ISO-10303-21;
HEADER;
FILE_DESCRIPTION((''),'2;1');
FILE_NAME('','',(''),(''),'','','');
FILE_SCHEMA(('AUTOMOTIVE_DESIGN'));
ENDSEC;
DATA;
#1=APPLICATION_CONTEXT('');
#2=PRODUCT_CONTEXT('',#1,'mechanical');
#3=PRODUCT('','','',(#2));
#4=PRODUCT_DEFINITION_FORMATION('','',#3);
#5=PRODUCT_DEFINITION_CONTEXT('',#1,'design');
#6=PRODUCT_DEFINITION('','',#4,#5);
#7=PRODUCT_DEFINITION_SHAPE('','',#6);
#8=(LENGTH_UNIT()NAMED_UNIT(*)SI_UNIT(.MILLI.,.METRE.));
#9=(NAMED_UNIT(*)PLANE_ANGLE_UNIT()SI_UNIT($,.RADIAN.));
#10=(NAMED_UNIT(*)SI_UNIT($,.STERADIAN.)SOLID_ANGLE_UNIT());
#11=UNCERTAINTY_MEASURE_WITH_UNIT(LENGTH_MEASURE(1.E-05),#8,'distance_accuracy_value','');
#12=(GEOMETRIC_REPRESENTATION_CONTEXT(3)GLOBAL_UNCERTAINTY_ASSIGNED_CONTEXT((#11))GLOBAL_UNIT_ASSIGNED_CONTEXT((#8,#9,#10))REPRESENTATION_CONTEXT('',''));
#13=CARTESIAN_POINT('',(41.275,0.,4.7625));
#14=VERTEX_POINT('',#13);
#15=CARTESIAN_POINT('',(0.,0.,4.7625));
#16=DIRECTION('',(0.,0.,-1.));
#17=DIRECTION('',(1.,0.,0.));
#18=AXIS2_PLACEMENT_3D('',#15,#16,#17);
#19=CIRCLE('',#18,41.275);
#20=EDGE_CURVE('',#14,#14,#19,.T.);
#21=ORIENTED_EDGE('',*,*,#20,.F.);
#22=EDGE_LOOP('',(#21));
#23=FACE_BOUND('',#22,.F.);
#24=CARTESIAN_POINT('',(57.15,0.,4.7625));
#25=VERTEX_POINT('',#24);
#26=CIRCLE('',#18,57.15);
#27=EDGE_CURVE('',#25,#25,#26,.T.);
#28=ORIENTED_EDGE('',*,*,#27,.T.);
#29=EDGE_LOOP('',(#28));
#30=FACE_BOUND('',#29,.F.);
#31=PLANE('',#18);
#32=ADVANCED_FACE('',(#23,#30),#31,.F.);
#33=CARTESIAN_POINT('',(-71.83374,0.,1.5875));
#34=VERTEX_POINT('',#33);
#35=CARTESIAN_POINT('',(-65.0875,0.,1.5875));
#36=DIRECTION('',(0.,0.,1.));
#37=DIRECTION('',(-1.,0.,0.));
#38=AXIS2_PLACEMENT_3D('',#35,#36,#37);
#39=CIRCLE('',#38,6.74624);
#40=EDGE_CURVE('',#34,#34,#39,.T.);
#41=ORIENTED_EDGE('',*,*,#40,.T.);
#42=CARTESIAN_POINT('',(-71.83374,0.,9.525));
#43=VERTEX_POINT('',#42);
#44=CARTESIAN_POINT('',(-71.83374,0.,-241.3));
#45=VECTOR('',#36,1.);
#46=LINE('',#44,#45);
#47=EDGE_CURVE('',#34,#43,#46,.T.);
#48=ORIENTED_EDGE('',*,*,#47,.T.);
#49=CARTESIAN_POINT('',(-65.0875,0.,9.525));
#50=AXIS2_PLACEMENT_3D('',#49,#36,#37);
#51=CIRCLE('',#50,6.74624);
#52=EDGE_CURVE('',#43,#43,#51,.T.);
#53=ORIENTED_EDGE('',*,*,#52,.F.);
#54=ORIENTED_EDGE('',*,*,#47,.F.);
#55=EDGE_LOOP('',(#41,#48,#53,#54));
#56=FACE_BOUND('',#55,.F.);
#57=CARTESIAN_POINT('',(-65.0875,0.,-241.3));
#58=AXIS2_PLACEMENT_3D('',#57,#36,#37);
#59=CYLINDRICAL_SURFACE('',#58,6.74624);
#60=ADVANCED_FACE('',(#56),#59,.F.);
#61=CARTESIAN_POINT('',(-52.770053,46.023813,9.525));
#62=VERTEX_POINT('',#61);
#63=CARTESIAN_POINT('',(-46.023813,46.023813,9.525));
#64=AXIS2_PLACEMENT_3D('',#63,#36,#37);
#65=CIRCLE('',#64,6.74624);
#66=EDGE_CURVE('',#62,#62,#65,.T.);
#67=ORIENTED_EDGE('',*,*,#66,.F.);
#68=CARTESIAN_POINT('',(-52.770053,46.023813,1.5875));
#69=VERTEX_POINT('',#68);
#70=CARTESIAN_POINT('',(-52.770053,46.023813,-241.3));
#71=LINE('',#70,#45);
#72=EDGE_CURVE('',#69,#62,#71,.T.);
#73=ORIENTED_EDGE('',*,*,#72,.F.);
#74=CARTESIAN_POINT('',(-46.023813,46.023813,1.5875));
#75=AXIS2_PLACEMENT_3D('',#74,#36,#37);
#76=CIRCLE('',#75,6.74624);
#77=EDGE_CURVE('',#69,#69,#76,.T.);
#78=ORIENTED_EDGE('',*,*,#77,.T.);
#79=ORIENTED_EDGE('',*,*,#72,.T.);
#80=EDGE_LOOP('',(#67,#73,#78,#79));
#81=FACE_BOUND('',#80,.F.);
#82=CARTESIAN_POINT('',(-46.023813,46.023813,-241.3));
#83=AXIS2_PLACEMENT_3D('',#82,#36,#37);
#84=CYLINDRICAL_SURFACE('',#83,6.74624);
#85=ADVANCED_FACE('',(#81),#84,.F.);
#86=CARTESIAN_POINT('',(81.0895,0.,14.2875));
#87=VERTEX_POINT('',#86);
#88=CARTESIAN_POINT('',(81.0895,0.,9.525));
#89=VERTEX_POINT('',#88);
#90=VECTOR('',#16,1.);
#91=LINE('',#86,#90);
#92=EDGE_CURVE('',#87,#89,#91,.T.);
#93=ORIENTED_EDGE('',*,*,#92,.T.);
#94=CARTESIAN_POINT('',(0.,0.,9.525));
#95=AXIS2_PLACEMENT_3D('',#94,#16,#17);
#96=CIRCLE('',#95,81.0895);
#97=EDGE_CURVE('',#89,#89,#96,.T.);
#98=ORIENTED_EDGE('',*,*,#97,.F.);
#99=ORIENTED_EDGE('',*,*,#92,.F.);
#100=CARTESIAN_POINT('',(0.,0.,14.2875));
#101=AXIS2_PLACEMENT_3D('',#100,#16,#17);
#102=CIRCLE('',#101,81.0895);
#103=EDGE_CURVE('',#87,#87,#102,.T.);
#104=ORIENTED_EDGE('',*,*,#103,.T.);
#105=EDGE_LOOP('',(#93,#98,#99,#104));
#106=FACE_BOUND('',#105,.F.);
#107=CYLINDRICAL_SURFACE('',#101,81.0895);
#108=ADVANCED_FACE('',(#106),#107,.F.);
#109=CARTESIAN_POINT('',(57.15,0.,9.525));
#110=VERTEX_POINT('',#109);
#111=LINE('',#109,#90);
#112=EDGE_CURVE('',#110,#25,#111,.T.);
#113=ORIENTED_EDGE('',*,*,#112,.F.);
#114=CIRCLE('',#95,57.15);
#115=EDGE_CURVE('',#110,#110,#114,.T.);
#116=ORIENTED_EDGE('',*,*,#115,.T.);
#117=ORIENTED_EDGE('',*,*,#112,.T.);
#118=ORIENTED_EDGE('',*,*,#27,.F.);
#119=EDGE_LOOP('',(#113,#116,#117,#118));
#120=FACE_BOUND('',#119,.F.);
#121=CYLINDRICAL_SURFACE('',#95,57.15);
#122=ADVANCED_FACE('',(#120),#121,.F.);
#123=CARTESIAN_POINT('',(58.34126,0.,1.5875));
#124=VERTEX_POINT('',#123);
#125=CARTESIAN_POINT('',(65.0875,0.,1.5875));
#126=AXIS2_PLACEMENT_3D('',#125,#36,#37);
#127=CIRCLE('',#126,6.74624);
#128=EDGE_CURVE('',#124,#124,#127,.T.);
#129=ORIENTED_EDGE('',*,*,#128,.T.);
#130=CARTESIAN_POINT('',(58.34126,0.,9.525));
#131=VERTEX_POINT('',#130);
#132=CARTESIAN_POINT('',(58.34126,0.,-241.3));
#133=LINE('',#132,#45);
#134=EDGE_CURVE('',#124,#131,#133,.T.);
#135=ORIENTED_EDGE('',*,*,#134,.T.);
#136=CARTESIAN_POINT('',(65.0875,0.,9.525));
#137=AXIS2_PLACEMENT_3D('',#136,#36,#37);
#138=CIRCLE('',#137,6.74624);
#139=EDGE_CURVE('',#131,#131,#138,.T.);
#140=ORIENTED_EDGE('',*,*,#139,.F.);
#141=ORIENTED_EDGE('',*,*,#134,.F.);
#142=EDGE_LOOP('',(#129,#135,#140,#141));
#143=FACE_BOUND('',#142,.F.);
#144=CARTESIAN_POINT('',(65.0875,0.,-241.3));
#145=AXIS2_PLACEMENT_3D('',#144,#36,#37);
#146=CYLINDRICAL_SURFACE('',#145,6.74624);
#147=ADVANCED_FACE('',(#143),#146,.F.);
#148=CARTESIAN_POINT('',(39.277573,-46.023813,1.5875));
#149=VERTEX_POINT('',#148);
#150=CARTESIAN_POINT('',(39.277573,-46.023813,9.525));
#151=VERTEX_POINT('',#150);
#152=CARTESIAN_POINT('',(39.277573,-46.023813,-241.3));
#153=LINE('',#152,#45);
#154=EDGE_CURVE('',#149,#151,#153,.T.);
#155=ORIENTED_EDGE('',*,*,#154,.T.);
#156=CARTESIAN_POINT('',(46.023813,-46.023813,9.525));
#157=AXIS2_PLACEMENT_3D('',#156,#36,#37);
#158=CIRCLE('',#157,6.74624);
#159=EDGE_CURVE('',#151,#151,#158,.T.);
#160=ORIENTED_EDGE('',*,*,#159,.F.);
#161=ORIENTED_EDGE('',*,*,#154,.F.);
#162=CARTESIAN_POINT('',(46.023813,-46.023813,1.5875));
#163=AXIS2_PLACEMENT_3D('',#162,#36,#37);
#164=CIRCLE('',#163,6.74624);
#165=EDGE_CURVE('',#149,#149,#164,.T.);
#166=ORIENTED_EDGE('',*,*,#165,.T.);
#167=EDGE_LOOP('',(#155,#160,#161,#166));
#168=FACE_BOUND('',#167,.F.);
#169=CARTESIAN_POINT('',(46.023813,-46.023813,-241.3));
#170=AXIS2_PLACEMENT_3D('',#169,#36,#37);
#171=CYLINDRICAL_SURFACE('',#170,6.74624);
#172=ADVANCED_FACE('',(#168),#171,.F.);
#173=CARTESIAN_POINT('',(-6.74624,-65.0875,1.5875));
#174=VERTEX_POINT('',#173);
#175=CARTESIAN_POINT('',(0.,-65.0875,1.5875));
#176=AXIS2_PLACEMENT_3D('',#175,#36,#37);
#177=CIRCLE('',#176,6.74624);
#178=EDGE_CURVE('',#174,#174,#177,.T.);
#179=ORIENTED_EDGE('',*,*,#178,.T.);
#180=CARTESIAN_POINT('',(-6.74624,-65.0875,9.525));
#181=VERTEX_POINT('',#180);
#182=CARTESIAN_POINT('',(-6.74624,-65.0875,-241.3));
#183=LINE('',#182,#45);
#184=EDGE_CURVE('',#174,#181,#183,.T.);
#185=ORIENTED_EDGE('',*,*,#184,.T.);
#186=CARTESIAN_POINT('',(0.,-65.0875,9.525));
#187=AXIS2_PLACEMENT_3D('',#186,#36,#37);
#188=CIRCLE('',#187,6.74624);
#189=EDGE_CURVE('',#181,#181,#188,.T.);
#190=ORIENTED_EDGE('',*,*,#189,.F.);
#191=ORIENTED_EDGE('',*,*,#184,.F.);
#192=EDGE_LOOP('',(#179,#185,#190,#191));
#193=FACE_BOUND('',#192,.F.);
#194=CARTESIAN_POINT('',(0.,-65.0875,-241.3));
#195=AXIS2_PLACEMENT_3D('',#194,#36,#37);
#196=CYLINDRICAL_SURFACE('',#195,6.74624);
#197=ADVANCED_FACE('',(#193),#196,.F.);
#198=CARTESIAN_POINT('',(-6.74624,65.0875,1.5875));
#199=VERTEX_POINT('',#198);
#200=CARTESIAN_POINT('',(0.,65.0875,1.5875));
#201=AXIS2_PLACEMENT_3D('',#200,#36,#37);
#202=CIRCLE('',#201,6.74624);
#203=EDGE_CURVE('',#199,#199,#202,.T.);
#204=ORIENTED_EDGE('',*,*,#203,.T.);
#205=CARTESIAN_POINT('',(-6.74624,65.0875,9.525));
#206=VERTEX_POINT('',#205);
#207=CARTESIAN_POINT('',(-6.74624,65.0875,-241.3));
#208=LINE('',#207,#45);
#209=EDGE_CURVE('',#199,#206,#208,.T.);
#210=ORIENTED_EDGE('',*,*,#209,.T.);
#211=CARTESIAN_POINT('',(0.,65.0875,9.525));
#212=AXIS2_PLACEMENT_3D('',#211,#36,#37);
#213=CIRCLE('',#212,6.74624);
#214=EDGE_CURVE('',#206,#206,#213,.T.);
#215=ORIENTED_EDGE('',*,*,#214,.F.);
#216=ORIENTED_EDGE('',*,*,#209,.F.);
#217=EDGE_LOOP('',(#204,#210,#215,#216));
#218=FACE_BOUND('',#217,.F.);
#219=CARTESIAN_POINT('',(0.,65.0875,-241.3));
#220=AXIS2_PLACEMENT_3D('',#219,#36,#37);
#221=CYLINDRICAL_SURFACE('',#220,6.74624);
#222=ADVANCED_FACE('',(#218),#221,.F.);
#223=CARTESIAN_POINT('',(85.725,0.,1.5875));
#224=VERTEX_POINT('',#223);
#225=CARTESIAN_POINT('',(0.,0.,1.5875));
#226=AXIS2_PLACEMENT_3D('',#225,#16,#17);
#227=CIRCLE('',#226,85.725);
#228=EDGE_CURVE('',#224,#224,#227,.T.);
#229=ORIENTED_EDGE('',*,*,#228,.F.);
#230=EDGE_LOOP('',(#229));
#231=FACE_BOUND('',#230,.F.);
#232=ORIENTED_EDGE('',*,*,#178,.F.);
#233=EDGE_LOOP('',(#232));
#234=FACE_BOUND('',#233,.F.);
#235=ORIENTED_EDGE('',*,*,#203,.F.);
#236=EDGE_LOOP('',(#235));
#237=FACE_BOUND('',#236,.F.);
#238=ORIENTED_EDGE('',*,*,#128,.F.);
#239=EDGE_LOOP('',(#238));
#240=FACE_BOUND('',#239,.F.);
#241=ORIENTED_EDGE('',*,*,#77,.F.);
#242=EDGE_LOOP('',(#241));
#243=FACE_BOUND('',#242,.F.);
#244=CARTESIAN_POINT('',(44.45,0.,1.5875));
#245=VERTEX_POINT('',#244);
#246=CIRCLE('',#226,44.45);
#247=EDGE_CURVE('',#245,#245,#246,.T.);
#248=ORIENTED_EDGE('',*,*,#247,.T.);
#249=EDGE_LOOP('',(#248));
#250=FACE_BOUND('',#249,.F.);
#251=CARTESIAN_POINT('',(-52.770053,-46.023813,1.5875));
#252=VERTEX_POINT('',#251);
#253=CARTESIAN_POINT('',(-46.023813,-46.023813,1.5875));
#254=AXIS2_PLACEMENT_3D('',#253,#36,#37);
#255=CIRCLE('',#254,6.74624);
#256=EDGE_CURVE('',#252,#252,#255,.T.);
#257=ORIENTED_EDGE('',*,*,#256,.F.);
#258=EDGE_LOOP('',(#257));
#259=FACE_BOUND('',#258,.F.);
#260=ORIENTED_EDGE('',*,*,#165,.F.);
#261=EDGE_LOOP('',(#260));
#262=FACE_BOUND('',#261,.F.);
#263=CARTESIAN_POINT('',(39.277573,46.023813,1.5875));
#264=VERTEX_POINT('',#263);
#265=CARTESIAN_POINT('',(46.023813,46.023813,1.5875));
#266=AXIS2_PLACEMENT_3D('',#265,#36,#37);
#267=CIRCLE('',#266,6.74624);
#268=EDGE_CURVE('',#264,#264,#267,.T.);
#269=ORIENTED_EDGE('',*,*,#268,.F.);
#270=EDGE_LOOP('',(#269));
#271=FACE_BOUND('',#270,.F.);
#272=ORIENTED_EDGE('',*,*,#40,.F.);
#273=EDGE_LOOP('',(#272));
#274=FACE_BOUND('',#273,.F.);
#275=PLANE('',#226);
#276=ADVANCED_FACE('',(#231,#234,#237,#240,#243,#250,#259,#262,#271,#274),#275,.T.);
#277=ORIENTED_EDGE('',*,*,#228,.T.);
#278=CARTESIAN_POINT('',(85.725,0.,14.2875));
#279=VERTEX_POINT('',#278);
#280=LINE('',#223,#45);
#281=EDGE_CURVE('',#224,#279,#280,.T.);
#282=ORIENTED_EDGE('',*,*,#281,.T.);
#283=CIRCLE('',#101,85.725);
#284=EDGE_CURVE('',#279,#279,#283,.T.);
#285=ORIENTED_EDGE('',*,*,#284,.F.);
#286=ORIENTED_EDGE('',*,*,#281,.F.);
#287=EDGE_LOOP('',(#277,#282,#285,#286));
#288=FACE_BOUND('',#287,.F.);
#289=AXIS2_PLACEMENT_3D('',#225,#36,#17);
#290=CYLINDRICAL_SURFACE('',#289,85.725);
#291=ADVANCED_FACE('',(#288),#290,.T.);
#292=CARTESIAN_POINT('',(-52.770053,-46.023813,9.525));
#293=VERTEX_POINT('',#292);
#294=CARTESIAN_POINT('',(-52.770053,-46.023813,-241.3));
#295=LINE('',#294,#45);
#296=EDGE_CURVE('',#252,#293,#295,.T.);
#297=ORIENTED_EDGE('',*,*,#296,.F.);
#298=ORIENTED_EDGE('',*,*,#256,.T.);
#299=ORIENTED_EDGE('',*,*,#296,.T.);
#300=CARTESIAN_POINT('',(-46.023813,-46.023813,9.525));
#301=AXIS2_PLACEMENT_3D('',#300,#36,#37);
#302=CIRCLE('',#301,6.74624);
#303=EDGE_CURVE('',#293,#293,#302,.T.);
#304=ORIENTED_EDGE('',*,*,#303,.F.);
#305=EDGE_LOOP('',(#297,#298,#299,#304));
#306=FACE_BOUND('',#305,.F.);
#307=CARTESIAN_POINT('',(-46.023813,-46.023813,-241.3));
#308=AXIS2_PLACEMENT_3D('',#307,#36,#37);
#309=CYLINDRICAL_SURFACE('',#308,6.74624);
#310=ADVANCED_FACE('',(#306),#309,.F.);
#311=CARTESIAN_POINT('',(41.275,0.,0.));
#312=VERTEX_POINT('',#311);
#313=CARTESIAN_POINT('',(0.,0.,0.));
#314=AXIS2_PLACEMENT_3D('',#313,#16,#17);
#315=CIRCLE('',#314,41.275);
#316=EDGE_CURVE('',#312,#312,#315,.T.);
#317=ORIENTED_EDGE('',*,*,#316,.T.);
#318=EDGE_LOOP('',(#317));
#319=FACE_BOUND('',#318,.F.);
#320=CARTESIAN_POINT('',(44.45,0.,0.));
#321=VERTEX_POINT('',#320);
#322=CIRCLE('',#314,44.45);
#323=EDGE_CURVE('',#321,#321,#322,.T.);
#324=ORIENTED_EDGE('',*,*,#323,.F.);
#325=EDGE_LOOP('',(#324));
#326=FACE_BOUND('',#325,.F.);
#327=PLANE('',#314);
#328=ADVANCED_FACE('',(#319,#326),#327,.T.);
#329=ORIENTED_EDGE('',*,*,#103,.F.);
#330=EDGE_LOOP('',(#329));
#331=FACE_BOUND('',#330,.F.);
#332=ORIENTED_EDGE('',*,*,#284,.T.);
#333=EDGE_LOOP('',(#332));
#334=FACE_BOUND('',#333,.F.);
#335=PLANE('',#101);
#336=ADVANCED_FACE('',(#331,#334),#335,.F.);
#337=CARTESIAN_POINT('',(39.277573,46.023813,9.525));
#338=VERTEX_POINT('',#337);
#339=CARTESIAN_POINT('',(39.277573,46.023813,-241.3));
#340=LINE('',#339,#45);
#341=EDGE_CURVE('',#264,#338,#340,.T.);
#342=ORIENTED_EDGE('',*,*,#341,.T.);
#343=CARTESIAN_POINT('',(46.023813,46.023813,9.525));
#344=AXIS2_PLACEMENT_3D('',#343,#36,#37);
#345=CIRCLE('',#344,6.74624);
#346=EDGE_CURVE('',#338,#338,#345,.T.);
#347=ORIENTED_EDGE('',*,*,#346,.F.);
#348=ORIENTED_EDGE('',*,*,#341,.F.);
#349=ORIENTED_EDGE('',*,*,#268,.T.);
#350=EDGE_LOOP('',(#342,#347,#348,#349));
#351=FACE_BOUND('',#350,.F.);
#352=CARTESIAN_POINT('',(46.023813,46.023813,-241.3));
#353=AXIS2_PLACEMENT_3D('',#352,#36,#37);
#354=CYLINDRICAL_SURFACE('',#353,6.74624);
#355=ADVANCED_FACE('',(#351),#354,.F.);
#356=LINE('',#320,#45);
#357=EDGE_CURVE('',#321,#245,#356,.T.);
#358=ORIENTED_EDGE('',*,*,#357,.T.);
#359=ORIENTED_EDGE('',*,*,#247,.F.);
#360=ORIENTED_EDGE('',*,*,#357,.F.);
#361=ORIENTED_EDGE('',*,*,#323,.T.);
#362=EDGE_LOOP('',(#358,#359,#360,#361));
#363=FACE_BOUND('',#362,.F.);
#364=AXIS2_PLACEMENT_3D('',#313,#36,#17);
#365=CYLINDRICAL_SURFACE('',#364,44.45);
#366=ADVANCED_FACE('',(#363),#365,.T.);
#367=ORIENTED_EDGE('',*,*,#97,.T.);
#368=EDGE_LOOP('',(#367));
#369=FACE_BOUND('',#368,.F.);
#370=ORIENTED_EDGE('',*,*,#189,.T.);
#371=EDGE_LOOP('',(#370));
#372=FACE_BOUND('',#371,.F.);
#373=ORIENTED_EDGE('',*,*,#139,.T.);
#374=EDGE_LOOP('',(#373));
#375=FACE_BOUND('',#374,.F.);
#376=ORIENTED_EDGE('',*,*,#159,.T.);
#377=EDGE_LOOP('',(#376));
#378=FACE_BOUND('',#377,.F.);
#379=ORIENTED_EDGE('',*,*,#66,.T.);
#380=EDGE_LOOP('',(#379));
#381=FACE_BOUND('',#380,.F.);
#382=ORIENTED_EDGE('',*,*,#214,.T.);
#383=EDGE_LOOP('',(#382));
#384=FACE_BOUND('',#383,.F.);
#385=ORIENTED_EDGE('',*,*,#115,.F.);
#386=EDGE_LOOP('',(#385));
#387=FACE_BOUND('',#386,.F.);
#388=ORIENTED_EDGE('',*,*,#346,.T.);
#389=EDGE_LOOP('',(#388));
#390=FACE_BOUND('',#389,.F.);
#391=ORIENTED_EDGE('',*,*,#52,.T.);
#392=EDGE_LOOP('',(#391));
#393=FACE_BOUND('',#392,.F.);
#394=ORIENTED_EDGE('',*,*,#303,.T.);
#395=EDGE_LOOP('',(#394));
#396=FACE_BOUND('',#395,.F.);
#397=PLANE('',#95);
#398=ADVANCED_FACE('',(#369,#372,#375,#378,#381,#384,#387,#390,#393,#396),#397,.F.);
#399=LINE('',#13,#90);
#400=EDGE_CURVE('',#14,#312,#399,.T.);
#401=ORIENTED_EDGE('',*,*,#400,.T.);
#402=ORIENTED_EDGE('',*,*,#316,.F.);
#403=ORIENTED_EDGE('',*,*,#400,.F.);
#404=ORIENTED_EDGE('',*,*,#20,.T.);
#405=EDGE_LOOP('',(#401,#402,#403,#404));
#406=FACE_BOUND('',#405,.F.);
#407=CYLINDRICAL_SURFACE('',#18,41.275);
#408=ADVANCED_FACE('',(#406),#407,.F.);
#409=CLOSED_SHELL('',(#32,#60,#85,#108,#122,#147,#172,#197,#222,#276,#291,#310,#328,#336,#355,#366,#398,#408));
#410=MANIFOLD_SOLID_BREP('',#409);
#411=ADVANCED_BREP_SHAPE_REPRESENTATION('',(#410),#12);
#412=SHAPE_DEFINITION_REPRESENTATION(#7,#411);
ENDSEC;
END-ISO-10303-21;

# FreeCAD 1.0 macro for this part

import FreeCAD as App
import Part
import Sketcher
Q = App.Units.Quantity

doc = App.newDocument("Part")
body = doc.addObject("PartDesign::Body", "Body")

# Sketch on XZ plane
sketch1 = body.newObject("Sketcher::SketchObject", "Sketch")
sketch1.AttachmentSupport = (doc.getObject("XZ_Plane"), [""])
sketch1.MapMode = "FlatFace"
sketch1.addGeometry(Part.LineSegment(App.Vector(41.3, 0, 0), App.Vector(44.5, 0, 0)), False)
sketch1.addGeometry(Part.LineSegment(App.Vector(44.5, 0, 0), App.Vector(44.5, 1.6, 0)), False)
sketch1.addGeometry(Part.LineSegment(App.Vector(44.5, 1.6, 0), App.Vector(85.7, 1.6, 0)), False)
sketch1.addGeometry(Part.LineSegment(App.Vector(85.7, 1.6, 0), App.Vector(85.7, 14.3, 0)), False)
sketch1.addGeometry(Part.LineSegment(App.Vector(85.7, 14.3, 0), App.Vector(81.1, 14.3, 0)), False)
sketch1.addGeometry(Part.LineSegment(App.Vector(81.1, 14.3, 0), App.Vector(81.1, 9.5, 0)), False)
sketch1.addGeometry(Part.LineSegment(App.Vector(81.1, 9.5, 0), App.Vector(57.1, 9.5, 0)), False)
sketch1.addGeometry(Part.LineSegment(App.Vector(57.1, 9.5, 0), App.Vector(57.1, 4.8, 0)), False)
sketch1.addGeometry(Part.LineSegment(App.Vector(57.1, 4.8, 0), App.Vector(41.3, 4.8, 0)), False)
sketch1.addGeometry(Part.LineSegment(App.Vector(41.3, 4.8, 0), App.Vector(41.3, 0, 0)), False)
sketch1.addConstraint(Sketcher.Constraint("Coincident", 0, 2, 1, 1))
sketch1.addConstraint(Sketcher.Constraint("Coincident", 1, 2, 2, 1))
sketch1.addConstraint(Sketcher.Constraint("Coincident", 2, 2, 3, 1))
sketch1.addConstraint(Sketcher.Constraint("Coincident", 3, 2, 4, 1))
sketch1.addConstraint(Sketcher.Constraint("Coincident", 4, 2, 5, 1))
sketch1.addConstraint(Sketcher.Constraint("Coincident", 5, 2, 6, 1))
sketch1.addConstraint(Sketcher.Constraint("Coincident", 6, 2, 7, 1))
sketch1.addConstraint(Sketcher.Constraint("Coincident", 7, 2, 8, 1))
sketch1.addConstraint(Sketcher.Constraint("Coincident", 8, 2, 9, 1))
sketch1.addConstraint(Sketcher.Constraint("Coincident", 9, 2, 0, 1))
sketch1.addConstraint(Sketcher.Constraint("Horizontal", 0))
sketch1.addConstraint(Sketcher.Constraint("Vertical", 1))
sketch1.addConstraint(Sketcher.Constraint("Horizontal", 2))
sketch1.addConstraint(Sketcher.Constraint("Vertical", 3))
sketch1.addConstraint(Sketcher.Constraint("Horizontal", 4))
sketch1.addConstraint(Sketcher.Constraint("Vertical", 5))
sketch1.addConstraint(Sketcher.Constraint("Horizontal", 6))
sketch1.addConstraint(Sketcher.Constraint("Vertical", 7))
sketch1.addConstraint(Sketcher.Constraint("Horizontal", 8))
sketch1.addConstraint(Sketcher.Constraint("Vertical", 9))
sketch1.addConstraint(Sketcher.Constraint("PointOnObject", 0, 2, -1))
sketch1.addConstraint(Sketcher.Constraint("Equal", 5, 7))
sketch1.addConstraint(Sketcher.Constraint("Equal", 7, 9))
sketch1.addConstraint(Sketcher.Constraint("DistanceY", 3, 1, 3, 2, Q("0.5 in")))
sketch1.addConstraint(Sketcher.Constraint("DistanceX", 1, 2, 6, 2, Q("0.5 in")))
sketch1.addConstraint(Sketcher.Constraint("DistanceX", 0, 1, 0, 2, Q("0.125 in")))
sketch1.addConstraint(Sketcher.Constraint("DistanceX", 2, 1, 2, 2, Q("1.625 in")))
sketch1.addConstraint(Sketcher.Constraint("DistanceY", 1, 1, 1, 2, Q("0.0625 in")))
sketch1.addConstraint(Sketcher.Constraint("DistanceX", -1, 1, 0, 2, Q("1.75 in")))
sketch1.addConstraint(Sketcher.Constraint("DistanceX", 4, 2, 4, 1, Q("0.1825 in")))
revolution = body.newObject("PartDesign::Revolution", "Revolution")
revolution.Profile = sketch1
revolution.ReferenceAxis = (sketch1, ["V_Axis"])
revolution.Angle = 360

# Sketch on XY plane
sketch2 = body.newObject("Sketcher::SketchObject", "Sketch001")
sketch2.AttachmentSupport = (doc.getObject("XY_Plane"), [""])
sketch2.MapMode = "FlatFace"
sketch2.AttachmentOffset = App.Placement(App.Vector(0, 0, 0.0625 * 25.4), App.Rotation())
sketch2.addGeometry(Part.Circle(App.Vector(0, -65, 0), App.Vector(0, 0, 1), 7), False)
sketch2.addGeometry(Part.Circle(App.Vector(-46, -46, 0), App.Vector(0, 0, 1), 7), False)
sketch2.addGeometry(Part.Circle(App.Vector(-65, 0, 0), App.Vector(0, 0, 1), 7), False)
sketch2.addGeometry(Part.Circle(App.Vector(-46, 46, 0), App.Vector(0, 0, 1), 7), False)
sketch2.addGeometry(Part.Circle(App.Vector(0, 65, 0), App.Vector(0, 0, 1), 7), False)
sketch2.addGeometry(Part.Circle(App.Vector(46, 46, 0), App.Vector(0, 0, 1), 7), False)
sketch2.addGeometry(Part.Circle(App.Vector(65, 0, 0), App.Vector(0, 0, 1), 7), False)
sketch2.addGeometry(Part.Circle(App.Vector(46, -46, 0), App.Vector(0, 0, 1), 7), False)
sketch2.addConstraint(Sketcher.Constraint("Equal", 0, 1))
sketch2.addConstraint(Sketcher.Constraint("Equal", 1, 2))
sketch2.addConstraint(Sketcher.Constraint("Equal", 2, 3))
sketch2.addConstraint(Sketcher.Constraint("Equal", 3, 4))
sketch2.addConstraint(Sketcher.Constraint("Equal", 4, 5))
sketch2.addConstraint(Sketcher.Constraint("Equal", 5, 6))
sketch2.addConstraint(Sketcher.Constraint("Equal", 6, 7))
sketch2.addConstraint(Sketcher.Constraint("Symmetric", 0, 3, 4, 3, -1, 1))
sketch2.addConstraint(Sketcher.Constraint("Symmetric", 1, 3, 5, 3, -1, 1))
sketch2.addConstraint(Sketcher.Constraint("Symmetric", 2, 3, 6, 3, -1, 1))
sketch2.addConstraint(Sketcher.Constraint("Symmetric", 3, 3, 7, 3, -1, 1))
sketch2.addConstraint(Sketcher.Constraint("Symmetric", 3, 3, 5, 3, -2))
sketch2.addConstraint(Sketcher.Constraint("PointOnObject", 0, 3, -2))
sketch2.addConstraint(Sketcher.Constraint("PointOnObject", 2, 3, -1))
sketch2.addConstraint(Sketcher.Constraint("Diameter", 0, Q("0.5312 in")))
sketch2.addConstraint(Sketcher.Constraint("DistanceY", 0, 3, -1, 1, Q("2.5625 in")))
sketch2.addConstraint(Sketcher.Constraint("DistanceX", 2, 3, -1, 1, Q("2.5625 in")))
sketch2.addConstraint(Sketcher.Constraint("DistanceX", 1, 3, -1, 1, Q("46.023813 mm")))
sketch2.addConstraint(Sketcher.Constraint("DistanceY", 1, 3, -1, 1, Q("46.023813 mm")))
doc.recompute()
hole = body.newObject("PartDesign::Hole", "Hole")
hole.Profile = sketch2
hole.ThreadType = "None"
hole.Diameter = Q("0.5312 in")
hole.DepthType = "ThroughAll"
hole.Reversed = True

doc.recompute()
